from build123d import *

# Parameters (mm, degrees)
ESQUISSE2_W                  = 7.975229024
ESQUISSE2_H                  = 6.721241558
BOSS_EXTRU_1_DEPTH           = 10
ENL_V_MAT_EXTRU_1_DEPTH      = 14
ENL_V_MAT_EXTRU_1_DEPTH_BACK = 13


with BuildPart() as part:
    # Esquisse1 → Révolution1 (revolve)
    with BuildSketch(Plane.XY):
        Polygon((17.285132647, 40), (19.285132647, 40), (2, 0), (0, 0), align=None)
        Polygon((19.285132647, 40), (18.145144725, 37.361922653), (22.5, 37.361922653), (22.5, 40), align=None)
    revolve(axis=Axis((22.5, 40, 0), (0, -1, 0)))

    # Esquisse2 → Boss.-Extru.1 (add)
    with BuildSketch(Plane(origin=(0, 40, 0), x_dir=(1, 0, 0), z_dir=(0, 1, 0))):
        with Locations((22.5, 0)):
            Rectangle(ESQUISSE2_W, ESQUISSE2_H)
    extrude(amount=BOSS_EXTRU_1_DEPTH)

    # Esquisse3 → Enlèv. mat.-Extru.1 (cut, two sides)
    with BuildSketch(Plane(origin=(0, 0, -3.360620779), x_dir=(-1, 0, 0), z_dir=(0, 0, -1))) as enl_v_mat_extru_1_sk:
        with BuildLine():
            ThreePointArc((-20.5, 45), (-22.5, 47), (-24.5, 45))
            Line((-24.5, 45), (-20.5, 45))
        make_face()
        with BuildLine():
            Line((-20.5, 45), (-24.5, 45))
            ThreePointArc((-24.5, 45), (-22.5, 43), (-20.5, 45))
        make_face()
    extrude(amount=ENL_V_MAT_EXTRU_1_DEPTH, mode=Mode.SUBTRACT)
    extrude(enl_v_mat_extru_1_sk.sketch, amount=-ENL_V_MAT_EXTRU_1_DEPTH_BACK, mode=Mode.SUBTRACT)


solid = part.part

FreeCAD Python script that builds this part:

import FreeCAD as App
import Part
import Sketcher

V = App.Vector

doc = App.newDocument("Part")
body = doc.addObject("PartDesign::Body", "Body")

sketch1 = body.newObject("Sketcher::SketchObject", "Sketch")
sketch1.AttachmentSupport = (doc.getObject("XY_Plane"), [""])
sketch1.MapMode = "FlatFace"
sketch1.addGeometry([
    Part.LineSegment(V(22.5, 40, 0), V(17.3, 40, 0)),
    Part.LineSegment(V(17.3, 40, 0), V(0, 0, 0)),
    Part.LineSegment(V(0, 0, 0), V(2, 0, 0)),
    Part.LineSegment(V(2, 0, 0), V(18.1, 37.4, 0)),
    Part.LineSegment(V(18.1, 37.4, 0), V(22.5, 37.4, 0)),
    Part.LineSegment(V(22.5, 37.4, 0), V(22.5, 40, 0)),
], False)
sketch1.addGeometry(Part.LineSegment(V(22.5, 40, 0), V(22.5, 0, 0)), True)
sketch1.addConstraint([
    Sketcher.Constraint("Coincident", 0, 2, 1, 1),
    Sketcher.Constraint("Coincident", 1, 2, 2, 1),
    Sketcher.Constraint("Coincident", 2, 2, 3, 1),
    Sketcher.Constraint("Coincident", 3, 2, 4, 1),
    Sketcher.Constraint("Coincident", 4, 2, 5, 1),
    Sketcher.Constraint("Coincident", 5, 2, 0, 1),
    Sketcher.Constraint("Horizontal", 0),
    Sketcher.Constraint("Horizontal", 2),
    Sketcher.Constraint("Horizontal", 4),
    Sketcher.Constraint("Vertical", 5),
    Sketcher.Constraint("Vertical", 6),
    Sketcher.Constraint("Coincident", 1, 2, -1, 1),
    Sketcher.Constraint("Coincident", 6, 1, 5, 2),
    Sketcher.Constraint("PointOnObject", 6, 2, -1),
    Sketcher.Constraint("Parallel", 1, 3),
    Sketcher.Constraint("DistanceX", 2, 1, 2, 2, 2.0),
    Sketcher.Constraint("DistanceY", 6, 2, 6, 1, 40.0),
    Sketcher.Constraint("DistanceX", -1, 1, 4, 2, 22.5),
    Sketcher.Constraint("DistanceX", 0, 2, 0, 1, 5.214867),
    Sketcher.Constraint("DistanceX", 4, 1, 4, 2, 4.354855),
])
revolution = body.newObject("PartDesign::Revolution", "Revolution")
revolution.Profile = sketch1
revolution.ReferenceAxis = (sketch1, ["Axis0"])
revolution.Angle = 360

sketch2 = body.newObject("Sketcher::SketchObject", "Sketch001")
sketch2.AttachmentSupport = (doc.getObject("XZ_Plane"), [""])
sketch2.MapMode = "FlatFace"
sketch2.AttachmentOffset = App.Placement(V(0, 0, -40), App.Rotation())
sketch2.addGeometry([
    Part.LineSegment(V(19, -3, 0), V(19, 3, 0)),
    Part.LineSegment(V(19, 3, 0), V(26, 3, 0)),
    Part.LineSegment(V(26, 3, 0), V(26, -3, 0)),
    Part.LineSegment(V(26, -3, 0), V(19, -3, 0)),
], False)
sketch2.addConstraint([
    Sketcher.Constraint("Coincident", 0, 2, 1, 1),
    Sketcher.Constraint("Coincident", 1, 2, 2, 1),
    Sketcher.Constraint("Coincident", 2, 2, 3, 1),
    Sketcher.Constraint("Coincident", 3, 2, 0, 1),
    Sketcher.Constraint("Vertical", 0),
    Sketcher.Constraint("Horizontal", 1),
    Sketcher.Constraint("Vertical", 2),
    Sketcher.Constraint("Horizontal", 3),
    Sketcher.Constraint("DistanceX", 1, 1, 1, 2, 7.975229),
    Sketcher.Constraint("DistanceY", 0, 1, 0, 2, 6.721242),
    Sketcher.Constraint("DistanceY", -1, 1, 0, 2, 3.360621),
    Sketcher.Constraint("DistanceX", -1, 1, 0, 2, 18.512385),
])
pad1 = body.newObject("PartDesign::Pad", "Pad")
pad1.Profile = sketch2
pad1.Length = 10
pad1.Reversed = True

sketch3 = body.newObject("Sketcher::SketchObject", "Sketch002")
sketch3.AttachmentSupport = (doc.getObject("XY_Plane"), [""])
sketch3.MapMode = "FlatFace"
sketch3.AttachmentOffset = App.Placement(V(0, 0, -3.360621), App.Rotation())
sketch3.addGeometry(Part.Circle(V(22.5, 45, 0), V(0, 0, 1), 2), False)
sketch3.addConstraint([
    Sketcher.Constraint("Diameter", 0, 4.0),
    Sketcher.Constraint("DistanceY", -1, 1, 0, 3, 45.0),
    Sketcher.Constraint("DistanceX", -1, 1, 0, 3, 22.5),
])
pocket1 = body.newObject("PartDesign::Pocket", "Pocket")
pocket1.Profile = sketch3
pocket1.Type = "ThroughAll"
pocket1.Midplane = True

doc.recompute()
